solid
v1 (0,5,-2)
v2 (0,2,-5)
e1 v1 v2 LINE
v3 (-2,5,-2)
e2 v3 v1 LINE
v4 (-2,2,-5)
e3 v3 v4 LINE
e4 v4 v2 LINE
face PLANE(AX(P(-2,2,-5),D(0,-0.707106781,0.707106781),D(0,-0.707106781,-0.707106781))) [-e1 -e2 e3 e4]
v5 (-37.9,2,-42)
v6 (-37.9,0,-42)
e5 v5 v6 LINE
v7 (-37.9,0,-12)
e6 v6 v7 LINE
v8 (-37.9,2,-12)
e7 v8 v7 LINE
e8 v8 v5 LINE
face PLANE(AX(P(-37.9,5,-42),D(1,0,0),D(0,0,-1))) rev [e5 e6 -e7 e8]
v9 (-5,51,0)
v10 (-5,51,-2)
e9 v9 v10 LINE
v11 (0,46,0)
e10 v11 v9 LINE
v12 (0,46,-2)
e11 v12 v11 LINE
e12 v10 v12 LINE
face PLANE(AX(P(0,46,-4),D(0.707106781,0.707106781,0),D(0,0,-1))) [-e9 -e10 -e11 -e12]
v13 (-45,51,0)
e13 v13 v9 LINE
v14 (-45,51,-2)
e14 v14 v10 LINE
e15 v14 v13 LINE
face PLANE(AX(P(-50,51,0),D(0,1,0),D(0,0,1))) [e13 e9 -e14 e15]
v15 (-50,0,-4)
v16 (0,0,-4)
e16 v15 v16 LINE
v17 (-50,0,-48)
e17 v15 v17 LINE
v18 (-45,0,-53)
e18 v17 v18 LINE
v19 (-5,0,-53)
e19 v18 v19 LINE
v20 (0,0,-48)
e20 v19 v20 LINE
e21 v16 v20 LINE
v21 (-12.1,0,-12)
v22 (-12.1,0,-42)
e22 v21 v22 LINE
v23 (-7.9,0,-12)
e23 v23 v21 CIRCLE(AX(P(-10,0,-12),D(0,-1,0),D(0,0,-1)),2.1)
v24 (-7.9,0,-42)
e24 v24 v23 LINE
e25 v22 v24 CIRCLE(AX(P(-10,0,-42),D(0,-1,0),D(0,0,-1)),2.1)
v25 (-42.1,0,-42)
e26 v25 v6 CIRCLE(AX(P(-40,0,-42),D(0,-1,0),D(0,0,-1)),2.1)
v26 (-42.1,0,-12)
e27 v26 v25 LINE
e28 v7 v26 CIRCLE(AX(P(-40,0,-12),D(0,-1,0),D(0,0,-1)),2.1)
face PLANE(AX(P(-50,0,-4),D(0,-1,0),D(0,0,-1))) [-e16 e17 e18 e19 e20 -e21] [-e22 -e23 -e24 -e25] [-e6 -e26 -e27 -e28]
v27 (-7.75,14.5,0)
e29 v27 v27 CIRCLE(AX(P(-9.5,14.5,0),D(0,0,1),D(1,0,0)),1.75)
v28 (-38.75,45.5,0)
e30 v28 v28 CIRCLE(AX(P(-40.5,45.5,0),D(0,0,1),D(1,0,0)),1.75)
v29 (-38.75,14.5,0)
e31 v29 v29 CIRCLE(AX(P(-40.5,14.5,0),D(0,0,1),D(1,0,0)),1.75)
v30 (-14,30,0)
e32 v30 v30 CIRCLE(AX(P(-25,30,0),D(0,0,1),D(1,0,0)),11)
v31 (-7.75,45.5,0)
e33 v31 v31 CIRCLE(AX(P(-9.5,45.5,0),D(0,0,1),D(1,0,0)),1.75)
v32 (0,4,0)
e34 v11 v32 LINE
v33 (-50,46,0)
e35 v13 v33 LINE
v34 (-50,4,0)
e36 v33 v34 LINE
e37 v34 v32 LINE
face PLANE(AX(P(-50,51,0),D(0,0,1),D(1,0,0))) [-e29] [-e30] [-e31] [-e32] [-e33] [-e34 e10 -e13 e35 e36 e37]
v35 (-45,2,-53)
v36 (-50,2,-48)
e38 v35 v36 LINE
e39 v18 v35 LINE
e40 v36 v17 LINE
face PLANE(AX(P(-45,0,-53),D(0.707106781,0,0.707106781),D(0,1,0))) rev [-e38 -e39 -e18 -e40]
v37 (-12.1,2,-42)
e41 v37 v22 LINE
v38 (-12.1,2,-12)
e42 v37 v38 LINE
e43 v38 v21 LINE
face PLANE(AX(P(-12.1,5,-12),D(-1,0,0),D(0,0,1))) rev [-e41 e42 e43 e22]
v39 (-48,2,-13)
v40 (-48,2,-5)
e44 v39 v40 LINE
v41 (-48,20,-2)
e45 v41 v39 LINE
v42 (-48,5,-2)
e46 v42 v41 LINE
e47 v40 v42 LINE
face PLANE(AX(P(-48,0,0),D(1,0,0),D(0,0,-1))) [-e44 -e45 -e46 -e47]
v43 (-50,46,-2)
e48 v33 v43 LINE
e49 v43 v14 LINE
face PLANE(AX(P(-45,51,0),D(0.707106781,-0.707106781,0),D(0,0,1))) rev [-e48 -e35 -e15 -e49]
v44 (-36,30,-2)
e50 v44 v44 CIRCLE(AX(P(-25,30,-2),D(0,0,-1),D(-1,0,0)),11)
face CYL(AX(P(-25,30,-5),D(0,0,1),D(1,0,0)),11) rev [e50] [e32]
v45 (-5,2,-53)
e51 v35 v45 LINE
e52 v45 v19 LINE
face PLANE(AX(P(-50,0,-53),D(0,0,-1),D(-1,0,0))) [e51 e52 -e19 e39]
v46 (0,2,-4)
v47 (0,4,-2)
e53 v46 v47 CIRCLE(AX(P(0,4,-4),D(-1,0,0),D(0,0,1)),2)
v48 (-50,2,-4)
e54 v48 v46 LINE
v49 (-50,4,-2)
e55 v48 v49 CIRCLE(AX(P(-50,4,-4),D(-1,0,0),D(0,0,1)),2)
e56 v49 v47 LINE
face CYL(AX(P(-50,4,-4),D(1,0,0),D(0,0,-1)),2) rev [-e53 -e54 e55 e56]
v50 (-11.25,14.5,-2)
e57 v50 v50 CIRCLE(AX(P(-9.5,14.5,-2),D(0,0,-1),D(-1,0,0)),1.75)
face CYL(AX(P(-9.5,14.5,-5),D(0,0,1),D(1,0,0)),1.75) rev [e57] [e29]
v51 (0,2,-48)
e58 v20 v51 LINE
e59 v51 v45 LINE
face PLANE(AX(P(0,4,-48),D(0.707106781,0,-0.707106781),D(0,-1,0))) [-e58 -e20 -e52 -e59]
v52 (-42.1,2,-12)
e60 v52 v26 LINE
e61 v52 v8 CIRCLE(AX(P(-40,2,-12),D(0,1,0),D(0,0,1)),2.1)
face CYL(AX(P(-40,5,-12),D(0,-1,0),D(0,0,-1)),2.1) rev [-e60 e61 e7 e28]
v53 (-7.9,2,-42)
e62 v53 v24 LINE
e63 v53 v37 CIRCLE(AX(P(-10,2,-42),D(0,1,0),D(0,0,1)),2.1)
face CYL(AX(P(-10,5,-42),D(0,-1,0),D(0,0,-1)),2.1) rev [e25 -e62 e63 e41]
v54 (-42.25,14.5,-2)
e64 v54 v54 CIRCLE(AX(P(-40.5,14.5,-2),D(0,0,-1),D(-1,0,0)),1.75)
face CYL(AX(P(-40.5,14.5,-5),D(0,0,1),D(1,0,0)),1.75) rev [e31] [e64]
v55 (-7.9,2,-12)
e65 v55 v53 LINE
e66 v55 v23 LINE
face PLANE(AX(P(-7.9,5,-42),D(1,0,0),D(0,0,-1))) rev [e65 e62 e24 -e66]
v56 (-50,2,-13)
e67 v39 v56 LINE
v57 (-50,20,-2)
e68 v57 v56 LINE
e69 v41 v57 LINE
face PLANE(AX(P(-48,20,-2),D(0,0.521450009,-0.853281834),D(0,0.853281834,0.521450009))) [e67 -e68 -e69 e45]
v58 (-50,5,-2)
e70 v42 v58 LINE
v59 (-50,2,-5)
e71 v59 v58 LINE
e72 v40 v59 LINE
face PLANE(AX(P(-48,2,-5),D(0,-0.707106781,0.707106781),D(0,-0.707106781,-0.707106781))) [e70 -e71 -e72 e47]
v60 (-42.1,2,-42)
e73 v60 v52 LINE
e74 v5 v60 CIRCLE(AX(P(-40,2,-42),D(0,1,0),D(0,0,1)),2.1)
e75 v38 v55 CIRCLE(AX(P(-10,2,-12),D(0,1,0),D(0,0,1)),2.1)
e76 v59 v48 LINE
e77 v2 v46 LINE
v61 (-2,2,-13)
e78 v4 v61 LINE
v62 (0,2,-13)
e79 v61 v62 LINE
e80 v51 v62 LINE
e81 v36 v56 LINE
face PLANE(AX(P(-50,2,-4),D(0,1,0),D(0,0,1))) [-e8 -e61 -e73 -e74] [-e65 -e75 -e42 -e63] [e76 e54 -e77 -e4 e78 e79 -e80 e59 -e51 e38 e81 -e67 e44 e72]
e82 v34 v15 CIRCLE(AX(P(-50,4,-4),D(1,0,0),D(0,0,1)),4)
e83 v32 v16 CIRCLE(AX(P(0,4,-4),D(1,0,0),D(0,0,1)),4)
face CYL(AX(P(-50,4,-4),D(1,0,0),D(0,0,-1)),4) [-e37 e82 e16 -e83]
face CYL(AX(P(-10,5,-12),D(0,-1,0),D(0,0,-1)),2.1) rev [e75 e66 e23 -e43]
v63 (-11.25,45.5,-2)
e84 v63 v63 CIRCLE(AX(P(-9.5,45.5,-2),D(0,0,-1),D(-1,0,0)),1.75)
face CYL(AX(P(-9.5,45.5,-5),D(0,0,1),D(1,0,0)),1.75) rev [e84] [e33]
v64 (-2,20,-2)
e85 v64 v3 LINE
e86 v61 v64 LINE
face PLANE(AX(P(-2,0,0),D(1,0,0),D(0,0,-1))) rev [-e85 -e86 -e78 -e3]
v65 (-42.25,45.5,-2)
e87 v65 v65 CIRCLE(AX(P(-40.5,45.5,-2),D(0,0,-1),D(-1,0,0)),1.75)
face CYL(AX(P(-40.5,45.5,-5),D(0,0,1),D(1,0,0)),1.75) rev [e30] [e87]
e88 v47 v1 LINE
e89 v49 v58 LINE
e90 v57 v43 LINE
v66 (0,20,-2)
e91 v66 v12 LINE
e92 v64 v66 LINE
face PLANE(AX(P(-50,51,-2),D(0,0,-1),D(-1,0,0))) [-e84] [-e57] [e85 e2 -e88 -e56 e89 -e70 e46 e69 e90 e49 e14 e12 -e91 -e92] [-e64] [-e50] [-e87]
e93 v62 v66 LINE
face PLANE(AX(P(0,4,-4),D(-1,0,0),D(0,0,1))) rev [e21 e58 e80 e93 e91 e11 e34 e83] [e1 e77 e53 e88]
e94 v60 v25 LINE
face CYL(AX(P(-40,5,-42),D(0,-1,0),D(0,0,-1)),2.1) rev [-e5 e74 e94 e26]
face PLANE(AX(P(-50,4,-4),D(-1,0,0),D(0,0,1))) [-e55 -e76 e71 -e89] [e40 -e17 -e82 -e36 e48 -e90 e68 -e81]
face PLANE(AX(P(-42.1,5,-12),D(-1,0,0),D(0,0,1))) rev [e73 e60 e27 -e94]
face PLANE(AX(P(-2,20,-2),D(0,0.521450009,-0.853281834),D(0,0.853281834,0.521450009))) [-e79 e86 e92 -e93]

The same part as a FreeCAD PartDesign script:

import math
import FreeCAD as App
import Part
import Sketcher
Q = App.Units.Quantity


def edges_at(feature, points):
    """Names of the edges that pass closest to the given points."""
    edges = feature.Shape.Edges
    near = lambda p: min(range(len(edges)), key=lambda i: edges[i].distToShape(Part.Vertex(*p))[0])
    return sorted({f"Edge{near(p) + 1}" for p in points})


def add_polygon(sketch, points):
    """Adds a closed chain of lines whose ends are joined by coincident constraints."""
    first, n = sketch.GeometryCount, len(points)
    for a, b in zip(points, points[1:] + points[:1]):
        sketch.addGeometry(Part.LineSegment(App.Vector(*a, 0), App.Vector(*b, 0)), False)
    for i in range(n):
        sketch.addConstraint(Sketcher.Constraint("Coincident", first + i, 2, first + (i + 1) % n, 1))

doc = App.newDocument("Part")
body = doc.addObject("PartDesign::Body", "Body")

sketch1 = body.newObject("Sketcher::SketchObject", "Sketch")
sketch1.AttachmentSupport = (doc.getObject("YZ_Plane"), [""])
sketch1.MapMode = "FlatFace"
sketch1.addGeometry(Part.LineSegment(App.Vector(51, 0, 0), App.Vector(4, 0, 0)), False)
sketch1.addGeometry(Part.ArcOfCircle(Part.Circle(App.Vector(4, -4, 0), App.Vector(0, 0, 1), 4), math.radians(90), math.radians(180)), False)
sketch1.addGeometry(Part.LineSegment(App.Vector(0, -4, 0), App.Vector(0, -53, 0)), False)
sketch1.addGeometry(Part.LineSegment(App.Vector(0, -53, 0), App.Vector(2, -53, 0)), False)
sketch1.addGeometry(Part.LineSegment(App.Vector(2, -53, 0), App.Vector(2, -4, 0)), False)
sketch1.addGeometry(Part.ArcOfCircle(Part.Circle(App.Vector(4, -4, 0), App.Vector(0, 0, 1), 2), math.radians(90), math.radians(180)), False)
sketch1.addGeometry(Part.LineSegment(App.Vector(4, -2, 0), App.Vector(51, -2, 0)), False)
sketch1.addGeometry(Part.LineSegment(App.Vector(51, -2, 0), App.Vector(51, 0, 0)), False)
sketch1.addConstraint(Sketcher.Constraint("Tangent", 0, 2, 1, 1))
sketch1.addConstraint(Sketcher.Constraint("Tangent", 1, 2, 2, 1))
sketch1.addConstraint(Sketcher.Constraint("Coincident", 2, 2, 3, 1))
sketch1.addConstraint(Sketcher.Constraint("Coincident", 3, 2, 4, 1))
sketch1.addConstraint(Sketcher.Constraint("Tangent", 4, 2, 5, 2))
sketch1.addConstraint(Sketcher.Constraint("Tangent", 5, 1, 6, 1))
sketch1.addConstraint(Sketcher.Constraint("Coincident", 6, 2, 7, 1))
sketch1.addConstraint(Sketcher.Constraint("Coincident", 7, 2, 0, 1))
sketch1.addConstraint(Sketcher.Constraint("Horizontal", 0))
sketch1.addConstraint(Sketcher.Constraint("Vertical", 2))
sketch1.addConstraint(Sketcher.Constraint("Horizontal", 3))
sketch1.addConstraint(Sketcher.Constraint("Vertical", 4))
sketch1.addConstraint(Sketcher.Constraint("Horizontal", 6))
sketch1.addConstraint(Sketcher.Constraint("Vertical", 7))
sketch1.addConstraint(Sketcher.Constraint("Coincident", 5, 3, 1, 3))
sketch1.addConstraint(Sketcher.Constraint("PointOnObject", 0, 2, -1))
sketch1.addConstraint(Sketcher.Constraint("PointOnObject", 1, 2, -2))
sketch1.addConstraint(Sketcher.Constraint("Radius", 1, 4.0))
sketch1.addConstraint(Sketcher.Constraint("Radius", 5, 2.0))
sketch1.addConstraint(Sketcher.Constraint("DistanceX", 0, 2, 0, 1, 47.0))
sketch1.addConstraint(Sketcher.Constraint("DistanceY", 2, 2, 2, 1, 49.0))
pad1 = body.newObject("PartDesign::Pad", "Pad")
pad1.Profile = sketch1
pad1.Length = 50
pad1.Reversed = True

sketch2 = body.newObject("Sketcher::SketchObject", "Sketch001")
sketch2.AttachmentSupport = (doc.getObject("YZ_Plane"), [""])
sketch2.MapMode = "FlatFace"
add_polygon(sketch2, [(2, -13), (20, -2), (5, -2), (2, -5)])
sketch2.addConstraint(Sketcher.Constraint("Horizontal", 1))
sketch2.addConstraint(Sketcher.Constraint("Vertical", 3))
sketch2.addConstraint(Sketcher.Constraint("DistanceX", 1, 2, 1, 1, 15.0))
sketch2.addConstraint(Sketcher.Constraint("DistanceY", 3, 2, 3, 1, 8.0))
sketch2.addConstraint(Sketcher.Constraint("Angle", 2, Q("-135 deg")))
sketch2.addConstraint(Sketcher.Constraint("DistanceX", -1, 1, 0, 2, 20.0))
sketch2.addConstraint(Sketcher.Constraint("DistanceY", 0, 2, -1, 1, 2.0))
sketch2.addConstraint(Sketcher.Constraint("DistanceX", -1, 1, 2, 2, 2.0))
pad2 = body.newObject("PartDesign::Pad", "Pad001")
pad2.Profile = sketch2
pad2.Length = 2
pad2.Reversed = True

sketch3 = body.newObject("Sketcher::SketchObject", "Sketch002")
sketch3.AttachmentSupport = (doc.getObject("YZ_Plane"), [""])
sketch3.MapMode = "FlatFace"
sketch3.AttachmentOffset = App.Placement(App.Vector(0, 0, -50), App.Rotation())
add_polygon(sketch3, [(20, -2), (2, -13), (2, -5), (5, -2)])
sketch3.addConstraint(Sketcher.Constraint("Vertical", 1))
sketch3.addConstraint(Sketcher.Constraint("Horizontal", 3))
sketch3.addConstraint(Sketcher.Constraint("DistanceX", 3, 1, 3, 2, 15.0))
sketch3.addConstraint(Sketcher.Constraint("DistanceY", 1, 1, 1, 2, 8.0))
sketch3.addConstraint(Sketcher.Constraint("Angle", 2, Q("45 deg")))
sketch3.addConstraint(Sketcher.Constraint("DistanceX", -1, 1, 0, 2, 2.0))
sketch3.addConstraint(Sketcher.Constraint("DistanceY", 0, 2, -1, 1, 13.0))
sketch3.addConstraint(Sketcher.Constraint("DistanceX", -1, 1, 2, 2, 5.0))
pad3 = body.newObject("PartDesign::Pad", "Pad002")
pad3.Profile = sketch3
pad3.Length = 2

sketch4 = body.newObject("Sketcher::SketchObject", "Sketch003")
sketch4.AttachmentSupport = (doc.getObject("XY_Plane"), [""])
sketch4.MapMode = "FlatFace"
sketch4.addGeometry(Part.Circle(App.Vector(-25, 30, 0), App.Vector(0, 0, 1), 11), False)
sketch4.addGeometry(Part.Circle(App.Vector(-9.5, 45.5, 0), App.Vector(0, 0, 1), 1.75), False)
sketch4.addGeometry(Part.Circle(App.Vector(-40.5, 45.5, 0), App.Vector(0, 0, 1), 1.75), False)
sketch4.addGeometry(Part.Circle(App.Vector(-40.5, 14.5, 0), App.Vector(0, 0, 1), 1.75), False)
sketch4.addGeometry(Part.Circle(App.Vector(-9.5, 14.5, 0), App.Vector(0, 0, 1), 1.75), False)
sketch4.addConstraint(Sketcher.Constraint("Equal", 1, 2))
sketch4.addConstraint(Sketcher.Constraint("Equal", 2, 3))
sketch4.addConstraint(Sketcher.Constraint("Equal", 3, 4))
sketch4.addConstraint(Sketcher.Constraint("Horizontal", 1, 3, 2, 3))
sketch4.addConstraint(Sketcher.Constraint("Horizontal", 3, 3, 4, 3))
sketch4.addConstraint(Sketcher.Constraint("Vertical", 2, 3, 3, 3))
sketch4.addConstraint(Sketcher.Constraint("Vertical", 1, 3, 4, 3))
sketch4.addConstraint(Sketcher.Constraint("Diameter", 0, 22.0))
sketch4.addConstraint(Sketcher.Constraint("Diameter", 1, 3.5))
sketch4.addConstraint(Sketcher.Constraint("DistanceX", 0, 3, -1, 1, 25.0))
sketch4.addConstraint(Sketcher.Constraint("DistanceY", -1, 1, 0, 3, 30.0))
sketch4.addConstraint(Sketcher.Constraint("DistanceX", 2, 3, 1, 3, 31.0))
sketch4.addConstraint(Sketcher.Constraint("DistanceY", 3, 3, 2, 3, 31.0))
sketch4.addConstraint(Sketcher.Constraint("DistanceX", 1, 3, -1, 1, 9.5))
sketch4.addConstraint(Sketcher.Constraint("DistanceY", -1, 1, 1, 3, 45.5))
pocket1 = body.newObject("PartDesign::Pocket", "Pocket")
pocket1.Profile = sketch4
pocket1.Length = 5

sketch5 = body.newObject("Sketcher::SketchObject", "Sketch004")
sketch5.AttachmentSupport = (doc.getObject("XZ_Plane"), [""])
sketch5.MapMode = "FlatFace"
sketch5.addGeometry(Part.LineSegment(App.Vector(-7.9, -42, 0), App.Vector(-7.9, -12, 0)), False)
sketch5.addGeometry(Part.ArcOfCircle(Part.Circle(App.Vector(-10, -12, 0), App.Vector(0, 0, 1), 2.1), math.radians(0), math.radians(180)), False)
sketch5.addGeometry(Part.LineSegment(App.Vector(-12.1, -12, 0), App.Vector(-12.1, -42, 0)), False)
sketch5.addGeometry(Part.ArcOfCircle(Part.Circle(App.Vector(-10, -42, 0), App.Vector(0, 0, 1), 2.1), math.radians(180), math.radians(360)), False)
sketch5.addGeometry(Part.LineSegment(App.Vector(-37.9, -42, 0), App.Vector(-37.9, -12, 0)), False)
sketch5.addGeometry(Part.ArcOfCircle(Part.Circle(App.Vector(-40, -12, 0), App.Vector(0, 0, 1), 2.1), math.radians(0), math.radians(180)), False)
sketch5.addGeometry(Part.LineSegment(App.Vector(-42.1, -12, 0), App.Vector(-42.1, -42, 0)), False)
sketch5.addGeometry(Part.ArcOfCircle(Part.Circle(App.Vector(-40, -42, 0), App.Vector(0, 0, 1), 2.1), math.radians(180), math.radians(360)), False)
sketch5.addConstraint(Sketcher.Constraint("Tangent", 0, 2, 1, 1))
sketch5.addConstraint(Sketcher.Constraint("Tangent", 1, 2, 2, 1))
sketch5.addConstraint(Sketcher.Constraint("Tangent", 2, 2, 3, 1))
sketch5.addConstraint(Sketcher.Constraint("Tangent", 3, 2, 0, 1))
sketch5.addConstraint(Sketcher.Constraint("Tangent", 4, 2, 5, 1))
sketch5.addConstraint(Sketcher.Constraint("Tangent", 5, 2, 6, 1))
sketch5.addConstraint(Sketcher.Constraint("Tangent", 6, 2, 7, 1))
sketch5.addConstraint(Sketcher.Constraint("Tangent", 7, 2, 4, 1))
sketch5.addConstraint(Sketcher.Constraint("Vertical", 0))
sketch5.addConstraint(Sketcher.Constraint("Vertical", 2))
sketch5.addConstraint(Sketcher.Constraint("Vertical", 4))
sketch5.addConstraint(Sketcher.Constraint("Vertical", 6))
sketch5.addConstraint(Sketcher.Constraint("Equal", 3, 5))
sketch5.addConstraint(Sketcher.Constraint("Horizontal", 1, 3, 5, 3))
sketch5.addConstraint(Sketcher.Constraint("Horizontal", 3, 3, 7, 3))
sketch5.addConstraint(Sketcher.Constraint("Radius", 1, 2.1))
sketch5.addConstraint(Sketcher.Constraint("DistanceY", 0, 1, 0, 2, 30.0))
sketch5.addConstraint(Sketcher.Constraint("DistanceX", 1, 3, -1, 1, 10.0))
sketch5.addConstraint(Sketcher.Constraint("DistanceY", 1, 3, -1, 1, 12.0))
sketch5.addConstraint(Sketcher.Constraint("DistanceX", 5, 3, -1, 1, 40.0))
pocket2 = body.newObject("PartDesign::Pocket", "Pocket001")
pocket2.Profile = sketch5
pocket2.Length = 5
doc.recompute()

chamfer = body.newObject("PartDesign::Chamfer", "Chamfer")
chamfer.Base = (pocket2, edges_at(pocket2, [
    (0, 51, -1),
    (-50, 1, -53),
    (-50, 51, -1),
    (0, 1, -53),
]))
chamfer.Size = 5

doc.recompute()
